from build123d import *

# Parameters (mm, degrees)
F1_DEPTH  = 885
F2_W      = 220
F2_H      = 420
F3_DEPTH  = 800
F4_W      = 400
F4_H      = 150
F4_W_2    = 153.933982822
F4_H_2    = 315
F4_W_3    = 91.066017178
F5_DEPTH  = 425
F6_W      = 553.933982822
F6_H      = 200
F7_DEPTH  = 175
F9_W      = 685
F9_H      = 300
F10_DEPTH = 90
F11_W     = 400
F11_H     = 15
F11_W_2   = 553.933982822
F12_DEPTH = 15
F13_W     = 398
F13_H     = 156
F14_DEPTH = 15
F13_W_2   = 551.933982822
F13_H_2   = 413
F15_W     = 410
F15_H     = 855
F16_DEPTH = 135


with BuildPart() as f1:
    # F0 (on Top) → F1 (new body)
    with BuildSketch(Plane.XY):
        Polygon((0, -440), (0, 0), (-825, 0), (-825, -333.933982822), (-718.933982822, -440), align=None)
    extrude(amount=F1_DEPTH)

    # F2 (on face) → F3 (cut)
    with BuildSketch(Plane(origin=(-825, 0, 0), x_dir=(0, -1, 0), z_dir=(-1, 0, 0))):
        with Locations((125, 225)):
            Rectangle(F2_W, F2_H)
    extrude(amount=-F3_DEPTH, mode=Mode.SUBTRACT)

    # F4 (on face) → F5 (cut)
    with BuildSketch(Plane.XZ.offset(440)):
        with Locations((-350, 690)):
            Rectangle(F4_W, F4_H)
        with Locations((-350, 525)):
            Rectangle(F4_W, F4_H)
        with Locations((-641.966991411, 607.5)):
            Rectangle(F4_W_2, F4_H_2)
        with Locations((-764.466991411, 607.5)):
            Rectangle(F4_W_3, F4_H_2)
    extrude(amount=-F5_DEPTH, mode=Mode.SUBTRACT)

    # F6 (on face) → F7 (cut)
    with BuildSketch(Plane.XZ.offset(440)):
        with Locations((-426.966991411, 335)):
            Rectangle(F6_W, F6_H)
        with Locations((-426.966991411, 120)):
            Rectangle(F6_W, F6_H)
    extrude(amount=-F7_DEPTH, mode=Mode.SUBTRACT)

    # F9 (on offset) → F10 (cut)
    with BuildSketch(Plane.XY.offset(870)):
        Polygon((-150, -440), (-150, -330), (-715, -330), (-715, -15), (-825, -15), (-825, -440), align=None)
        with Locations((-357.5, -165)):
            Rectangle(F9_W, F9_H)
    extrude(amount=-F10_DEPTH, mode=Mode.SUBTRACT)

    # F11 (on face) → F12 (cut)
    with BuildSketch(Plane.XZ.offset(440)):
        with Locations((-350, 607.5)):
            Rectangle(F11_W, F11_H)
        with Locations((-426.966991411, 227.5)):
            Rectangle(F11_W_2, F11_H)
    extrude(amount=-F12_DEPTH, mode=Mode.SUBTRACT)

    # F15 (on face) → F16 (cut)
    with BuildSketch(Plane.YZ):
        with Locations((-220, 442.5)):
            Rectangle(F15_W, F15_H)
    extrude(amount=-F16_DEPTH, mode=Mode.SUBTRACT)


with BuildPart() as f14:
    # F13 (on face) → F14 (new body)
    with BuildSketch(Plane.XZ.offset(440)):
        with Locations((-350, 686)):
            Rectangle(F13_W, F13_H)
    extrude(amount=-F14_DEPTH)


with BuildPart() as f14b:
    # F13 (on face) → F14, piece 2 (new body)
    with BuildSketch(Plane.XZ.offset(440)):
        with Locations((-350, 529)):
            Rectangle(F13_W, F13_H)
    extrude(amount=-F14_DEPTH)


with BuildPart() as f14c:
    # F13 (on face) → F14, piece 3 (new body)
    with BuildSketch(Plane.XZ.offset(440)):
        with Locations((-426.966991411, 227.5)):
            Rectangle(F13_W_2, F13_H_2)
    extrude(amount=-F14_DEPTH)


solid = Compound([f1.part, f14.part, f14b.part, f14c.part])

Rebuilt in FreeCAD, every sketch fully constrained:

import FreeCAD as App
import Part
import Sketcher

V = App.Vector
Q = App.Units.Quantity


def add_polygon(sketch, points):
    """Adds a closed chain of lines whose ends are joined by coincident constraints."""
    first, n = sketch.GeometryCount, len(points)
    for a, b in zip(points, points[1:] + points[:1]):
        sketch.addGeometry(Part.LineSegment(App.Vector(*a, 0), App.Vector(*b, 0)), False)
    for i in range(n):
        sketch.addConstraint(Sketcher.Constraint("Coincident", first + i, 2, first + (i + 1) % n, 1))

doc = App.newDocument("Part")
body = doc.addObject("PartDesign::Body", "Body")

sketch1 = body.newObject("Sketcher::SketchObject", "Sketch")
sketch1.AttachmentSupport = (doc.getObject("XY_Plane"), [""])
sketch1.MapMode = "FlatFace"
add_polygon(sketch1, [(0, -440), (0, 0), (-825, 0), (-825, -334), (-719, -440)])
sketch1.addConstraint(Sketcher.Constraint("Vertical", 0))
sketch1.addConstraint(Sketcher.Constraint("Horizontal", 1))
sketch1.addConstraint(Sketcher.Constraint("Vertical", 2))
sketch1.addConstraint(Sketcher.Constraint("Horizontal", 4))
sketch1.addConstraint(Sketcher.Constraint("Coincident", 0, 2, -1, 1))
sketch1.addConstraint(Sketcher.Constraint("DistanceX", 1, 2, 1, 1, 825.0))
sketch1.addConstraint(Sketcher.Constraint("DistanceY", 0, 1, 0, 2, 440.0))
sketch1.addConstraint(Sketcher.Constraint("Angle", 3, Q("-45 deg")))
sketch1.addConstraint(Sketcher.Constraint("Distance", 3, 150.0))
pad1 = body.newObject("PartDesign::Pad", "Pad")
pad1.Profile = sketch1
pad1.Length = 885

sketch2 = body.newObject("Sketcher::SketchObject", "Sketch001")
sketch2.AttachmentSupport = (doc.getObject("YZ_Plane"), [""])
sketch2.MapMode = "FlatFace"
sketch2.AttachmentOffset = App.Placement(V(0, 0, -825), App.Rotation())
add_polygon(sketch2, [(-15, 435), (-15, 15), (-235, 15), (-235, 435)])
sketch2.addConstraint(Sketcher.Constraint("Vertical", 0))
sketch2.addConstraint(Sketcher.Constraint("Horizontal", 1))
sketch2.addConstraint(Sketcher.Constraint("Vertical", 2))
sketch2.addConstraint(Sketcher.Constraint("Horizontal", 3))
sketch2.addConstraint(Sketcher.Constraint("DistanceX", 1, 2, 1, 1, 220.0))
sketch2.addConstraint(Sketcher.Constraint("DistanceY", 0, 2, 0, 1, 420.0))
sketch2.addConstraint(Sketcher.Constraint("DistanceX", 0, 2, -1, 1, 15.0))
sketch2.addConstraint(Sketcher.Constraint("DistanceY", -1, 1, 0, 2, 15.0))
pocket1 = body.newObject("PartDesign::Pocket", "Pocket")
pocket1.Profile = sketch2
pocket1.Length = 800
pocket1.Reversed = True

sketch3 = body.newObject("Sketcher::SketchObject", "Sketch002")
sketch3.AttachmentSupport = (doc.getObject("XZ_Plane"), [""])
sketch3.MapMode = "FlatFace"
sketch3.AttachmentOffset = App.Placement(V(0, 0, 440), App.Rotation())
add_polygon(sketch3, [(-550, 765), (-550, 615), (-150, 615), (-150, 765)])
add_polygon(sketch3, [(-550, 600), (-550, 450), (-150, 450), (-150, 600)])
add_polygon(sketch3, [(-565, 450), (-565, 765), (-810, 765), (-810, 450)])
sketch3.addConstraint(Sketcher.Constraint("Vertical", 0))
sketch3.addConstraint(Sketcher.Constraint("Horizontal", 1))
sketch3.addConstraint(Sketcher.Constraint("Vertical", 2))
sketch3.addConstraint(Sketcher.Constraint("Horizontal", 3))
sketch3.addConstraint(Sketcher.Constraint("Vertical", 4))
sketch3.addConstraint(Sketcher.Constraint("Horizontal", 5))
sketch3.addConstraint(Sketcher.Constraint("Vertical", 6))
sketch3.addConstraint(Sketcher.Constraint("Horizontal", 7))
sketch3.addConstraint(Sketcher.Constraint("Vertical", 8))
sketch3.addConstraint(Sketcher.Constraint("Horizontal", 9))
sketch3.addConstraint(Sketcher.Constraint("Vertical", 10))
sketch3.addConstraint(Sketcher.Constraint("Horizontal", 11))
sketch3.addConstraint(Sketcher.Constraint("Horizontal", 3, 2, 8, 2))
sketch3.addConstraint(Sketcher.Constraint("Horizontal", 5, 2, 10, 2))
sketch3.addConstraint(Sketcher.Constraint("Vertical", 3, 2, 4, 2))
sketch3.addConstraint(Sketcher.Constraint("Vertical", 2, 2, 5, 2))
sketch3.addConstraint(Sketcher.Constraint("Equal", 2, 4))
sketch3.addConstraint(Sketcher.Constraint("DistanceX", 1, 1, 1, 2, 400.0))
sketch3.addConstraint(Sketcher.Constraint("DistanceX", 9, 2, 9, 1, 245.0))
sketch3.addConstraint(Sketcher.Constraint("DistanceY", 0, 2, 0, 1, 150.0))
sketch3.addConstraint(Sketcher.Constraint("DistanceY", 8, 1, 8, 2, 315.0))
sketch3.addConstraint(Sketcher.Constraint("DistanceX", 0, 2, -1, 1, 550.0))
sketch3.addConstraint(Sketcher.Constraint("DistanceY", -1, 1, 0, 2, 615.0))
sketch3.addConstraint(Sketcher.Constraint("DistanceX", 8, 2, -1, 1, 565.0))
pocket2 = body.newObject("PartDesign::Pocket", "Pocket001")
pocket2.Profile = sketch3
pocket2.Length = 425

sketch4 = body.newObject("Sketcher::SketchObject", "Sketch003")
sketch4.AttachmentSupport = (doc.getObject("XZ_Plane"), [""])
sketch4.MapMode = "FlatFace"
sketch4.AttachmentOffset = App.Placement(V(0, 0, 440), App.Rotation())
add_polygon(sketch4, [(-704, 435), (-704, 235), (-150, 235), (-150, 435)])
add_polygon(sketch4, [(-704, 220), (-704, 20), (-150, 20), (-150, 220)])
sketch4.addConstraint(Sketcher.Constraint("Vertical", 0))
sketch4.addConstraint(Sketcher.Constraint("Horizontal", 1))
sketch4.addConstraint(Sketcher.Constraint("Vertical", 2))
sketch4.addConstraint(Sketcher.Constraint("Horizontal", 3))
sketch4.addConstraint(Sketcher.Constraint("Vertical", 4))
sketch4.addConstraint(Sketcher.Constraint("Horizontal", 5))
sketch4.addConstraint(Sketcher.Constraint("Vertical", 6))
sketch4.addConstraint(Sketcher.Constraint("Horizontal", 7))
sketch4.addConstraint(Sketcher.Constraint("Vertical", 3, 2, 4, 2))
sketch4.addConstraint(Sketcher.Constraint("Vertical", 2, 2, 5, 2))
sketch4.addConstraint(Sketcher.Constraint("Equal", 2, 4))
sketch4.addConstraint(Sketcher.Constraint("DistanceY", 0, 2, 0, 1, 200.0))
sketch4.addConstraint(Sketcher.Constraint("DistanceY", -1, 1, 0, 2, 235.0))
sketch4.addConstraint(Sketcher.Constraint("DistanceX", 1, 2, -1, 1, 150.0))
sketch4.addConstraint(Sketcher.Constraint("DistanceY", -1, 1, 4, 2, 20.0))
sketch4.addConstraint(Sketcher.Constraint("DistanceX", 1, 1, 1, 2, 553.933983))
pocket3 = body.newObject("PartDesign::Pocket", "Pocket002")
pocket3.Profile = sketch4
pocket3.Length = 175

sketch5 = body.newObject("Sketcher::SketchObject", "Sketch004")
sketch5.AttachmentSupport = (doc.getObject("XY_Plane"), [""])
sketch5.MapMode = "FlatFace"
sketch5.AttachmentOffset = App.Placement(V(0, 0, 870), App.Rotation())
add_polygon(sketch5, [(-150, -440), (-150, -330), (-715, -330), (-715, -15), (-825, -15), (-825, -440)])
add_polygon(sketch5, [(-700, -15), (-700, -315), (-15, -315), (-15, -15)])
sketch5.addConstraint(Sketcher.Constraint("Vertical", 0))
sketch5.addConstraint(Sketcher.Constraint("Horizontal", 1))
sketch5.addConstraint(Sketcher.Constraint("Vertical", 2))
sketch5.addConstraint(Sketcher.Constraint("Horizontal", 3))
sketch5.addConstraint(Sketcher.Constraint("Vertical", 4))
sketch5.addConstraint(Sketcher.Constraint("Horizontal", 5))
sketch5.addConstraint(Sketcher.Constraint("Vertical", 6))
sketch5.addConstraint(Sketcher.Constraint("Horizontal", 7))
sketch5.addConstraint(Sketcher.Constraint("Vertical", 8))
sketch5.addConstraint(Sketcher.Constraint("Horizontal", 9))
sketch5.addConstraint(Sketcher.Constraint("Horizontal", 3, 2, 8, 2))
sketch5.addConstraint(Sketcher.Constraint("Equal", 3, 0))
sketch5.addConstraint(Sketcher.Constraint("DistanceX", 1, 2, 1, 1, 565.0))
sketch5.addConstraint(Sketcher.Constraint("DistanceX", 3, 2, 3, 1, 110.0))
sketch5.addConstraint(Sketcher.Constraint("DistanceX", 7, 1, 7, 2, 685.0))
sketch5.addConstraint(Sketcher.Constraint("DistanceY", 2, 1, 2, 2, 315.0))
sketch5.addConstraint(Sketcher.Constraint("DistanceY", 6, 2, 6, 1, 300.0))
sketch5.addConstraint(Sketcher.Constraint("DistanceX", 0, 2, -1, 1, 150.0))
sketch5.addConstraint(Sketcher.Constraint("DistanceY", 0, 2, -1, 1, 330.0))
sketch5.addConstraint(Sketcher.Constraint("DistanceX", 6, 2, -1, 1, 700.0))
pocket4 = body.newObject("PartDesign::Pocket", "Pocket003")
pocket4.Profile = sketch5
pocket4.Length = 90

sketch6 = body.newObject("Sketcher::SketchObject", "Sketch005")
sketch6.AttachmentSupport = (doc.getObject("XZ_Plane"), [""])
sketch6.MapMode = "FlatFace"
sketch6.AttachmentOffset = App.Placement(V(0, 0, 440), App.Rotation())
add_polygon(sketch6, [(-550, 615), (-550, 600), (-150, 600), (-150, 615)])
add_polygon(sketch6, [(-704, 235), (-704, 220), (-150, 220), (-150, 235)])
sketch6.addConstraint(Sketcher.Constraint("Vertical", 0))
sketch6.addConstraint(Sketcher.Constraint("Horizontal", 1))
sketch6.addConstraint(Sketcher.Constraint("Vertical", 2))
sketch6.addConstraint(Sketcher.Constraint("Horizontal", 3))
sketch6.addConstraint(Sketcher.Constraint("Vertical", 4))
sketch6.addConstraint(Sketcher.Constraint("Horizontal", 5))
sketch6.addConstraint(Sketcher.Constraint("Vertical", 6))
sketch6.addConstraint(Sketcher.Constraint("Horizontal", 7))
sketch6.addConstraint(Sketcher.Constraint("Vertical", 2, 2, 5, 2))
sketch6.addConstraint(Sketcher.Constraint("Equal", 2, 4))
sketch6.addConstraint(Sketcher.Constraint("DistanceX", 1, 1, 1, 2, 400.0))
sketch6.addConstraint(Sketcher.Constraint("DistanceY", 0, 2, 0, 1, 15.0))
sketch6.addConstraint(Sketcher.Constraint("DistanceX", 0, 2, -1, 1, 550.0))
sketch6.addConstraint(Sketcher.Constraint("DistanceY", -1, 1, 0, 2, 600.0))
sketch6.addConstraint(Sketcher.Constraint("DistanceY", -1, 1, 4, 2, 220.0))
sketch6.addConstraint(Sketcher.Constraint("DistanceX", 5, 1, 5, 2, 553.933983))
pocket5 = body.newObject("PartDesign::Pocket", "Pocket004")
pocket5.Profile = sketch6
pocket5.Length = 15

sketch7 = body.newObject("Sketcher::SketchObject", "Sketch006")
sketch7.AttachmentSupport = (doc.getObject("YZ_Plane"), [""])
sketch7.MapMode = "FlatFace"
add_polygon(sketch7, [(-425, 870), (-425, 15), (-15, 15), (-15, 870)])
sketch7.addConstraint(Sketcher.Constraint("Vertical", 0))
sketch7.addConstraint(Sketcher.Constraint("Horizontal", 1))
sketch7.addConstraint(Sketcher.Constraint("Vertical", 2))
sketch7.addConstraint(Sketcher.Constraint("Horizontal", 3))
sketch7.addConstraint(Sketcher.Constraint("DistanceX", 1, 1, 1, 2, 410.0))
sketch7.addConstraint(Sketcher.Constraint("DistanceY", 0, 2, 0, 1, 855.0))
sketch7.addConstraint(Sketcher.Constraint("DistanceX", 0, 2, -1, 1, 425.0))
sketch7.addConstraint(Sketcher.Constraint("DistanceY", -1, 1, 0, 2, 15.0))
pocket6 = body.newObject("PartDesign::Pocket", "Pocket005")
pocket6.Profile = sketch7
pocket6.Length = 135
body2 = doc.addObject("PartDesign::Body", "Body001")

sketch8 = body2.newObject("Sketcher::SketchObject", "Sketch007")
sketch8.AttachmentSupport = (doc.getObject("XZ_Plane001"), [""])
sketch8.MapMode = "FlatFace"
sketch8.AttachmentOffset = App.Placement(V(0, 0, 440), App.Rotation())
add_polygon(sketch8, [(-549, 764), (-549, 608), (-151, 608), (-151, 764)])
sketch8.addConstraint(Sketcher.Constraint("Vertical", 0))
sketch8.addConstraint(Sketcher.Constraint("Horizontal", 1))
sketch8.addConstraint(Sketcher.Constraint("Vertical", 2))
sketch8.addConstraint(Sketcher.Constraint("Horizontal", 3))
sketch8.addConstraint(Sketcher.Constraint("DistanceX", 1, 1, 1, 2, 398.0))
sketch8.addConstraint(Sketcher.Constraint("DistanceY", 0, 2, 0, 1, 156.0))
sketch8.addConstraint(Sketcher.Constraint("DistanceX", 0, 2, -1, 1, 549.0))
sketch8.addConstraint(Sketcher.Constraint("DistanceY", -1, 1, 0, 2, 608.0))
pad2 = body2.newObject("PartDesign::Pad", "Pad001")
pad2.Profile = sketch8
pad2.Length = 15
pad2.Reversed = True
body3 = doc.addObject("PartDesign::Body", "Body002")

sketch9 = body3.newObject("Sketcher::SketchObject", "Sketch008")
sketch9.AttachmentSupport = (doc.getObject("XZ_Plane002"), [""])
sketch9.MapMode = "FlatFace"
sketch9.AttachmentOffset = App.Placement(V(0, 0, 440), App.Rotation())
add_polygon(sketch9, [(-549, 607), (-549, 451), (-151, 451), (-151, 607)])
sketch9.addConstraint(Sketcher.Constraint("Vertical", 0))
sketch9.addConstraint(Sketcher.Constraint("Horizontal", 1))
sketch9.addConstraint(Sketcher.Constraint("Vertical", 2))
sketch9.addConstraint(Sketcher.Constraint("Horizontal", 3))
sketch9.addConstraint(Sketcher.Constraint("DistanceX", 1, 1, 1, 2, 398.0))
sketch9.addConstraint(Sketcher.Constraint("DistanceY", 0, 2, 0, 1, 156.0))
sketch9.addConstraint(Sketcher.Constraint("DistanceX", 0, 2, -1, 1, 549.0))
sketch9.addConstraint(Sketcher.Constraint("DistanceY", -1, 1, 0, 2, 451.0))
pad3 = body3.newObject("PartDesign::Pad", "Pad002")
pad3.Profile = sketch9
pad3.Length = 15
pad3.Reversed = True
body4 = doc.addObject("PartDesign::Body", "Body003")

sketch10 = body4.newObject("Sketcher::SketchObject", "Sketch009")
sketch10.AttachmentSupport = (doc.getObject("XZ_Plane003"), [""])
sketch10.MapMode = "FlatFace"
sketch10.AttachmentOffset = App.Placement(V(0, 0, 440), App.Rotation())
add_polygon(sketch10, [(-703, 434), (-703, 21), (-151, 21), (-151, 434)])
sketch10.addConstraint(Sketcher.Constraint("Vertical", 0))
sketch10.addConstraint(Sketcher.Constraint("Horizontal", 1))
sketch10.addConstraint(Sketcher.Constraint("Vertical", 2))
sketch10.addConstraint(Sketcher.Constraint("Horizontal", 3))
sketch10.addConstraint(Sketcher.Constraint("DistanceY", 0, 2, 0, 1, 413.0))
sketch10.addConstraint(Sketcher.Constraint("DistanceY", -1, 1, 0, 2, 21.0))
sketch10.addConstraint(Sketcher.Constraint("DistanceX", 1, 2, -1, 1, 151.0))
sketch10.addConstraint(Sketcher.Constraint("DistanceX", 1, 1, 1, 2, 551.933983))
pad4 = body4.newObject("PartDesign::Pad", "Pad003")
pad4.Profile = sketch10
pad4.Length = 15
pad4.Reversed = True

doc.recompute()
